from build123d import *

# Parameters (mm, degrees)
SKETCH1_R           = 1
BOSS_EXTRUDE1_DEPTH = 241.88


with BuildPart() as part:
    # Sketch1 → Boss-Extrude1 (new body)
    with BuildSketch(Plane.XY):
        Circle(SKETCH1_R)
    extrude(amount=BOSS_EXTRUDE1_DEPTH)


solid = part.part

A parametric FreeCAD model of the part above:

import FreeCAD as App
import Part
import Sketcher

V = App.Vector
Q = App.Units.Quantity

doc = App.newDocument("Part")
body = doc.addObject("PartDesign::Body", "Body")

sketch1 = body.newObject("Sketcher::SketchObject", "Sketch")
sketch1.AttachmentSupport = (doc.getObject("XY_Plane"), [""])
sketch1.MapMode = "FlatFace"
sketch1.addGeometry(Part.Circle(V(0, 0, 0), V(0, 0, 1), 1), False)
sketch1.addConstraint([
    Sketcher.Constraint("Coincident", 0, 3, -1, 1),
    Sketcher.Constraint("Diameter", 0, Q("2 mm")),
])
pad1 = body.newObject("PartDesign::Pad", "Pad")
pad1.Profile = sketch1
pad1.Length = 241.88

doc.recompute()
